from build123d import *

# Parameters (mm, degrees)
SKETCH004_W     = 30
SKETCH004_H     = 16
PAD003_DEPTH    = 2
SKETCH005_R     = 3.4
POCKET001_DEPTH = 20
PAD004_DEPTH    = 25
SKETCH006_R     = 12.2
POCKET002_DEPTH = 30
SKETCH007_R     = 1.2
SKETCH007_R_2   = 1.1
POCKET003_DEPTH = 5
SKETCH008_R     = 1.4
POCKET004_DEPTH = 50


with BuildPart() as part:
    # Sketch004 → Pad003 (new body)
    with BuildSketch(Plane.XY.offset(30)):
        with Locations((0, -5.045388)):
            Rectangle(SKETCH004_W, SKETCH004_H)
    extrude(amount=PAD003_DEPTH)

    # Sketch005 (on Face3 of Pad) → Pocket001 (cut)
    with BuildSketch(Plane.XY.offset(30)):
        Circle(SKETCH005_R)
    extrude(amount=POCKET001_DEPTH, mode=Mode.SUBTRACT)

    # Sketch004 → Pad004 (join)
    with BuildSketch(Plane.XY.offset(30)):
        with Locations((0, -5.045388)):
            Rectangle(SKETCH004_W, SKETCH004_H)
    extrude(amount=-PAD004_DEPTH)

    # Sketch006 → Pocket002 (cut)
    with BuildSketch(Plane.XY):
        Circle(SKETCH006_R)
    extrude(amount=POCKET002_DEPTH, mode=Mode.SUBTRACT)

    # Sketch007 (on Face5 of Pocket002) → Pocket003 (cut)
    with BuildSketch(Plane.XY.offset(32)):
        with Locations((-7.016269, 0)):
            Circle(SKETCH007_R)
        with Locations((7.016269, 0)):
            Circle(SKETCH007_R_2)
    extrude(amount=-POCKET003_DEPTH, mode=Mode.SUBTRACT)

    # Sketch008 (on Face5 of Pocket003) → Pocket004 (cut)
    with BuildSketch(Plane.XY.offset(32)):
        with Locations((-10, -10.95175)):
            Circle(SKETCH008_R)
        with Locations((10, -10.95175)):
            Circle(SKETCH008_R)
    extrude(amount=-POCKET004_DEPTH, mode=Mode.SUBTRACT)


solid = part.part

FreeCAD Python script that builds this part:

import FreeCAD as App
import Part
import Sketcher
from FreeCAD import Vector
Q = App.Units.Quantity

doc = App.newDocument("Part")
body = doc.addObject("PartDesign::Body", "Body")

# Sketch on XY plane
sketch1 = body.newObject("Sketcher::SketchObject", "Sketch")
sketch1.AttachmentSupport = (doc.getObject("XY_Plane"), [""])
sketch1.MapMode = "FlatFace"
sketch1.AttachmentOffset = App.Placement(Vector(0, 0, 30), App.Rotation())
sketch1.addGeometry(Part.LineSegment(Vector(-15, 3, 0), Vector(-15, -13, 0)), False)
sketch1.addGeometry(Part.LineSegment(Vector(-15, -13, 0), Vector(15, -13, 0)), False)
sketch1.addGeometry(Part.LineSegment(Vector(15, -13, 0), Vector(15, 3, 0)), False)
sketch1.addGeometry(Part.LineSegment(Vector(15, 3, 0), Vector(-15, 3, 0)), False)
sketch1.addConstraint(Sketcher.Constraint("Coincident", 0, 2, 1, 1))
sketch1.addConstraint(Sketcher.Constraint("Coincident", 1, 2, 2, 1))
sketch1.addConstraint(Sketcher.Constraint("Coincident", 2, 2, 3, 1))
sketch1.addConstraint(Sketcher.Constraint("Coincident", 3, 2, 0, 1))
sketch1.addConstraint(Sketcher.Constraint("Vertical", 0))
sketch1.addConstraint(Sketcher.Constraint("Horizontal", 1))
sketch1.addConstraint(Sketcher.Constraint("Vertical", 2))
sketch1.addConstraint(Sketcher.Constraint("Horizontal", 3))
sketch1.addConstraint(Sketcher.Constraint("DistanceX", 1, 1, 1, 2, Q("30 mm")))
sketch1.addConstraint(Sketcher.Constraint("DistanceY", 0, 2, 0, 1, Q("16 mm")))
sketch1.addConstraint(Sketcher.Constraint("DistanceX", 0, 2, -1, 1, Q("15 mm")))
sketch1.addConstraint(Sketcher.Constraint("DistanceY", 0, 2, -1, 1, Q("13.045388 mm")))
pad1 = body.newObject("PartDesign::Pad", "Pad")
pad1.Profile = sketch1
pad1.Length = 2

# Sketch on XY plane
sketch2 = body.newObject("Sketcher::SketchObject", "Sketch001")
sketch2.AttachmentSupport = (doc.getObject("XY_Plane"), [""])
sketch2.MapMode = "FlatFace"
sketch2.AttachmentOffset = App.Placement(Vector(0, 0, 30), App.Rotation())
sketch2.addGeometry(Part.Circle(Vector(0, 0, 0), Vector(0, 0, 1), 3.4), False)
sketch2.addConstraint(Sketcher.Constraint("Coincident", 0, 3, -1, 1))
sketch2.addConstraint(Sketcher.Constraint("Diameter", 0, Q("6.8 mm")))
pocket1 = body.newObject("PartDesign::Pocket", "Pocket")
pocket1.Profile = sketch2
pocket1.Length = 20
pocket1.Reversed = True

# Sketch on XY plane
sketch3 = body.newObject("Sketcher::SketchObject", "Sketch002")
sketch3.AttachmentSupport = (doc.getObject("XY_Plane"), [""])
sketch3.MapMode = "FlatFace"
sketch3.AttachmentOffset = App.Placement(Vector(0, 0, 30), App.Rotation())
sketch3.addGeometry(Part.LineSegment(Vector(-15, 3, 0), Vector(-15, -13, 0)), False)
sketch3.addGeometry(Part.LineSegment(Vector(-15, -13, 0), Vector(15, -13, 0)), False)
sketch3.addGeometry(Part.LineSegment(Vector(15, -13, 0), Vector(15, 3, 0)), False)
sketch3.addGeometry(Part.LineSegment(Vector(15, 3, 0), Vector(-15, 3, 0)), False)
sketch3.addConstraint(Sketcher.Constraint("Coincident", 0, 2, 1, 1))
sketch3.addConstraint(Sketcher.Constraint("Coincident", 1, 2, 2, 1))
sketch3.addConstraint(Sketcher.Constraint("Coincident", 2, 2, 3, 1))
sketch3.addConstraint(Sketcher.Constraint("Coincident", 3, 2, 0, 1))
sketch3.addConstraint(Sketcher.Constraint("Vertical", 0))
sketch3.addConstraint(Sketcher.Constraint("Horizontal", 1))
sketch3.addConstraint(Sketcher.Constraint("Vertical", 2))
sketch3.addConstraint(Sketcher.Constraint("Horizontal", 3))
sketch3.addConstraint(Sketcher.Constraint("DistanceX", 1, 1, 1, 2, Q("30 mm")))
sketch3.addConstraint(Sketcher.Constraint("DistanceY", 0, 2, 0, 1, Q("16 mm")))
sketch3.addConstraint(Sketcher.Constraint("DistanceX", 0, 2, -1, 1, Q("15 mm")))
sketch3.addConstraint(Sketcher.Constraint("DistanceY", 0, 2, -1, 1, Q("13.045388 mm")))
pad2 = body.newObject("PartDesign::Pad", "Pad001")
pad2.Profile = sketch3
pad2.Length = 25
pad2.Reversed = True

# Sketch on XY plane
sketch4 = body.newObject("Sketcher::SketchObject", "Sketch003")
sketch4.AttachmentSupport = (doc.getObject("XY_Plane"), [""])
sketch4.MapMode = "FlatFace"
sketch4.addGeometry(Part.Circle(Vector(0, 0, 0), Vector(0, 0, 1), 12), False)
sketch4.addConstraint(Sketcher.Constraint("Coincident", 0, 3, -1, 1))
sketch4.addConstraint(Sketcher.Constraint("Diameter", 0, Q("24.4 mm")))
pocket2 = body.newObject("PartDesign::Pocket", "Pocket001")
pocket2.Profile = sketch4
pocket2.Length = 30
pocket2.Reversed = True

# Sketch on XY plane
sketch5 = body.newObject("Sketcher::SketchObject", "Sketch004")
sketch5.AttachmentSupport = (doc.getObject("XY_Plane"), [""])
sketch5.MapMode = "FlatFace"
sketch5.AttachmentOffset = App.Placement(Vector(0, 0, 32), App.Rotation())
sketch5.addGeometry(Part.Circle(Vector(-7, 0, 0), Vector(0, 0, 1), 1.2), False)
sketch5.addGeometry(Part.Circle(Vector(7, 0, 0), Vector(0, 0, 1), 1.1), False)
sketch5.addConstraint(Sketcher.Constraint("Symmetric", 0, 3, 1, 3, -1, 1))
sketch5.addConstraint(Sketcher.Constraint("PointOnObject", 0, 3, -1))
sketch5.addConstraint(Sketcher.Constraint("Diameter", 0, Q("2.4 mm")))
sketch5.addConstraint(Sketcher.Constraint("Diameter", 1, Q("2.2 mm")))
sketch5.addConstraint(Sketcher.Constraint("DistanceX", 0, 3, -1, 1, Q("7.016269 mm")))
pocket3 = body.newObject("PartDesign::Pocket", "Pocket002")
pocket3.Profile = sketch5
pocket3.Length = 5

# Sketch on XY plane
sketch6 = body.newObject("Sketcher::SketchObject", "Sketch005")
sketch6.AttachmentSupport = (doc.getObject("XY_Plane"), [""])
sketch6.MapMode = "FlatFace"
sketch6.AttachmentOffset = App.Placement(Vector(0, 0, 32), App.Rotation())
sketch6.addGeometry(Part.Circle(Vector(-10, -11, 0), Vector(0, 0, 1), 1.4), False)
sketch6.addGeometry(Part.Circle(Vector(10, -11, 0), Vector(0, 0, 1), 1.4), False)
sketch6.addConstraint(Sketcher.Constraint("Equal", 0, 1))
sketch6.addConstraint(Sketcher.Constraint("Symmetric", 0, 3, 1, 3, -2))
sketch6.addConstraint(Sketcher.Constraint("Diameter", 0, Q("2.8 mm")))
sketch6.addConstraint(Sketcher.Constraint("DistanceX", 0, 3, -1, 1, Q("10 mm")))
sketch6.addConstraint(Sketcher.Constraint("DistanceY", 0, 3, -1, 1, Q("10.95175 mm")))
pocket4 = body.newObject("PartDesign::Pocket", "Pocket003")
pocket4.Profile = sketch6
pocket4.Length = 50

doc.recompute()
